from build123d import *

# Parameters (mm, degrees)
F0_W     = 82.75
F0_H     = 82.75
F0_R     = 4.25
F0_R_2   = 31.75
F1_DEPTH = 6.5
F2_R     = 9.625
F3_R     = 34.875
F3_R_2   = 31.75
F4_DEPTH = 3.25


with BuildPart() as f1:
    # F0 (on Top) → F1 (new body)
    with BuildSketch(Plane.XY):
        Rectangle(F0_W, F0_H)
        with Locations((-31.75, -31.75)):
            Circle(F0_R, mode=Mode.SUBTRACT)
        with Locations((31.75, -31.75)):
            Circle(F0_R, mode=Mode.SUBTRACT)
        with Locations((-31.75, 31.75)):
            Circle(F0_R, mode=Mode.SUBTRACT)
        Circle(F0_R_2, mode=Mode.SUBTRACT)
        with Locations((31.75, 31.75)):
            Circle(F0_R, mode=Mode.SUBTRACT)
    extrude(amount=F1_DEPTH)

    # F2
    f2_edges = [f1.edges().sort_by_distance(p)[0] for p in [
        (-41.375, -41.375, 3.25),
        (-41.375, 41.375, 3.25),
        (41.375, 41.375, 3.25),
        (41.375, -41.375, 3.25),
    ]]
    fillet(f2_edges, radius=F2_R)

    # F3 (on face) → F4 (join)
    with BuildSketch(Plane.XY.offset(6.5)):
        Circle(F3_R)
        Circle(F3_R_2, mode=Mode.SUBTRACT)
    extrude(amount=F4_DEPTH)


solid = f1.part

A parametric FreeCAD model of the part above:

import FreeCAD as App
import Part
import Sketcher
Q = App.Units.Quantity


def edges_at(feature, points):
    """Names of the edges that pass closest to the given points."""
    edges = feature.Shape.Edges
    near = lambda p: min(range(len(edges)), key=lambda i: edges[i].distToShape(Part.Vertex(*p))[0])
    return sorted({f"Edge{near(p) + 1}" for p in points})


def add_polygon(sketch, points):
    """Adds a closed chain of lines whose ends are joined by coincident constraints."""
    first, n = sketch.GeometryCount, len(points)
    for a, b in zip(points, points[1:] + points[:1]):
        sketch.addGeometry(Part.LineSegment(App.Vector(*a, 0), App.Vector(*b, 0)), False)
    for i in range(n):
        sketch.addConstraint(Sketcher.Constraint("Coincident", first + i, 2, first + (i + 1) % n, 1))

doc = App.newDocument("Part")
body = doc.addObject("PartDesign::Body", "Body")

# Sketch on XY plane
sketch1 = body.newObject("Sketcher::SketchObject", "Sketch")
sketch1.AttachmentSupport = (doc.getObject("XY_Plane"), [""])
sketch1.MapMode = "FlatFace"
add_polygon(sketch1, [(-41.4, 41.4), (-41.4, -41.4), (41.4, -41.4), (41.4, 41.4)])  # lines 0-3
sketch1.addGeometry(Part.Circle(App.Vector(-31.8, -31.8, 0), App.Vector(0, 0, 1), 4.2), False)  # 4
sketch1.addGeometry(Part.Circle(App.Vector(31.8, -31.8, 0), App.Vector(0, 0, 1), 4.2), False)  # 5
sketch1.addGeometry(Part.Circle(App.Vector(-31.8, 31.8, 0), App.Vector(0, 0, 1), 4.2), False)  # 6
sketch1.addGeometry(Part.Circle(App.Vector(0, 0, 0), App.Vector(0, 0, 1), 31.8), False)  # 7
sketch1.addGeometry(Part.Circle(App.Vector(31.8, 31.8, 0), App.Vector(0, 0, 1), 4.2), False)  # 8
sketch1.addConstraint([
    Sketcher.Constraint("Vertical", 0),
    Sketcher.Constraint("Horizontal", 1),
    Sketcher.Constraint("Vertical", 2),
    Sketcher.Constraint("Horizontal", 3),
    Sketcher.Constraint("Coincident", 7, 3, -1, 1),
    Sketcher.Constraint("Equal", 4, 5),
    Sketcher.Constraint("Equal", 5, 6),
    Sketcher.Constraint("Equal", 6, 8),
    Sketcher.Constraint("Symmetric", 5, 3, 6, 3, -1, 1),
    Sketcher.Constraint("Symmetric", 4, 3, 8, 3, -1, 1),
    Sketcher.Constraint("Symmetric", 0, 2, 2, 2, -1, 1),
    Sketcher.Constraint("Symmetric", 4, 3, 5, 3, -2),
    Sketcher.Constraint("Equal", 3, 0),
    Sketcher.Constraint("Diameter", 4, Q("8.5 mm")),
    Sketcher.Constraint("Diameter", 7, Q("63.5 mm")),
    Sketcher.Constraint("DistanceX", 1, 1, 1, 2, Q("82.75 mm")),
    Sketcher.Constraint("DistanceX", 4, 3, 5, 3, Q("63.5 mm")),
    Sketcher.Constraint("DistanceY", 4, 3, 6, 3, Q("63.5 mm")),
])
pad1 = body.newObject("PartDesign::Pad", "Pad")
pad1.Profile = sketch1
pad1.Length = 6.5
doc.recompute()

fillet = body.newObject("PartDesign::Fillet", "Fillet")
fillet.Base = (pad1, edges_at(pad1, [
    (-41.375, -41.375, 3.25),
    (-41.375, 41.375, 3.25),
    (41.375, 41.375, 3.25),
    (41.375, -41.375, 3.25),
]))
fillet.Radius = 9.625

# Sketch on XY plane
sketch2 = body.newObject("Sketcher::SketchObject", "Sketch001")
sketch2.AttachmentSupport = (doc.getObject("XY_Plane"), [""])
sketch2.MapMode = "FlatFace"
sketch2.AttachmentOffset = App.Placement(App.Vector(0, 0, 6.5), App.Rotation())
sketch2.addGeometry([
    Part.Circle(App.Vector(0, 0, 0), App.Vector(0, 0, 1), 35),
    Part.Circle(App.Vector(0, 0, 0), App.Vector(0, 0, 1), 32),
], False)
sketch2.addConstraint([
    Sketcher.Constraint("Coincident", 0, 3, -1, 1),
    Sketcher.Constraint("Coincident", 1, 3, -1, 1),
    Sketcher.Constraint("Diameter", 1, Q("63.5 mm")),
    Sketcher.Constraint("Diameter", 0, Q("69.75 mm")),
])
pad2 = body.newObject("PartDesign::Pad", "Pad001")
pad2.Profile = sketch2
pad2.Length = 3.25

doc.recompute()
